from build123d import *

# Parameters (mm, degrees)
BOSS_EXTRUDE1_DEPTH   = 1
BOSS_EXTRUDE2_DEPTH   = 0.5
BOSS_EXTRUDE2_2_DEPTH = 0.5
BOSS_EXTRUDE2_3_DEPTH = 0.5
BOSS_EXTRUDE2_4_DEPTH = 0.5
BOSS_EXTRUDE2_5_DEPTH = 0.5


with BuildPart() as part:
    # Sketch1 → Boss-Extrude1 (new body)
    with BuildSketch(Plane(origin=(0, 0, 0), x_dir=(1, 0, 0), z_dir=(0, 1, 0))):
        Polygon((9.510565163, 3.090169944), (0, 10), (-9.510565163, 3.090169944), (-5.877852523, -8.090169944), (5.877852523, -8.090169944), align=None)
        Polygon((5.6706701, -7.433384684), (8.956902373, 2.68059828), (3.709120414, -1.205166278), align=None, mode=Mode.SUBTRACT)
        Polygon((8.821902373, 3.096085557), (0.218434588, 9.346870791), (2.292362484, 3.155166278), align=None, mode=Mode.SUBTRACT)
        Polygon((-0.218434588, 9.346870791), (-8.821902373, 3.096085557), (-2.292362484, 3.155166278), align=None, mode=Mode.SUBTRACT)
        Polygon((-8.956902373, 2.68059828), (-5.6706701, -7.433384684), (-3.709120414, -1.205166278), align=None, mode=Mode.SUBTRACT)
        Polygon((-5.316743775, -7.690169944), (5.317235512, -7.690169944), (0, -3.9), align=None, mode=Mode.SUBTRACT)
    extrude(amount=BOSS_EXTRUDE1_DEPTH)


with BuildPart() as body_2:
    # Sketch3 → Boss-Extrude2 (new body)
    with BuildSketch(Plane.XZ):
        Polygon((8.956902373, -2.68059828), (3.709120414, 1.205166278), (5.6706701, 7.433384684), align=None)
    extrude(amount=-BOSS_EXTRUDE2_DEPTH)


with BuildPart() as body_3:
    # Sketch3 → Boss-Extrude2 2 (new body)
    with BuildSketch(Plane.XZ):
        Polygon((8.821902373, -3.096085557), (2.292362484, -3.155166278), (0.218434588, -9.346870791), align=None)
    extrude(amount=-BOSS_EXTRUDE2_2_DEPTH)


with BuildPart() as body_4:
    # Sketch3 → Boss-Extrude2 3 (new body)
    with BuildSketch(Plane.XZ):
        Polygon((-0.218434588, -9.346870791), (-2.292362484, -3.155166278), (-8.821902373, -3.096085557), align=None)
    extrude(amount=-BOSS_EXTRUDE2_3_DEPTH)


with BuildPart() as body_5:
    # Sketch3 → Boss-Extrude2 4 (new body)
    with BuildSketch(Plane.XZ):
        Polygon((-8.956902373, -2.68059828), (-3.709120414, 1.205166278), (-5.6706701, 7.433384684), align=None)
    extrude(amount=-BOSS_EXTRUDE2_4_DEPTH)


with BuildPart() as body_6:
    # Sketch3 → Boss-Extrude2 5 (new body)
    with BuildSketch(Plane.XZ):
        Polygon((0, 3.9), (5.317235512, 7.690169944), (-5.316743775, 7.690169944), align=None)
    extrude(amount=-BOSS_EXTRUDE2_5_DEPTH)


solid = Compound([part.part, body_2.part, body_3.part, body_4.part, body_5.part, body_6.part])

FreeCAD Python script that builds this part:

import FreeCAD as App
import Part
import Sketcher
from FreeCAD import Vector
Q = App.Units.Quantity


def add_polygon(sketch, points):
    """Adds a closed chain of lines whose ends are joined by coincident constraints."""
    first, n = sketch.GeometryCount, len(points)
    for a, b in zip(points, points[1:] + points[:1]):
        sketch.addGeometry(Part.LineSegment(App.Vector(*a, 0), App.Vector(*b, 0)), False)
    for i in range(n):
        sketch.addConstraint(Sketcher.Constraint("Coincident", first + i, 2, first + (i + 1) % n, 1))

doc = App.newDocument("Part")
body = doc.addObject("PartDesign::Body", "Body")

# Sketch on XZ plane
sketch1 = body.newObject("Sketcher::SketchObject", "Sketch")
sketch1.AttachmentSupport = (doc.getObject("XZ_Plane"), [""])
sketch1.MapMode = "FlatFace"
add_polygon(sketch1, [(9.510565, -3.09017), (0, -10), (-9.510565, -3.09017), (-5.877853, 8.09017), (5.877853, 8.09017)])  # lines 0-4
add_polygon(sketch1, [(-5.67067, 7.433385), (-8.956902, -2.680598), (-3.70912, 1.205166)])  # lines 5-7
add_polygon(sketch1, [(5.317236, 7.69017), (-5.316744, 7.69017), (0, 3.9)])  # lines 8-10
add_polygon(sketch1, [(8.956902, -2.680598), (5.67067, 7.433385), (3.70912, 1.205166)])  # lines 11-13
add_polygon(sketch1, [(-8.821902, -3.096086), (-0.218435, -9.346871), (-2.292362, -3.155166)])  # lines 14-16
add_polygon(sketch1, [(0.218435, -9.346871), (8.821902, -3.096086), (2.292362, -3.155166)])  # lines 17-19
sketch1.addConstraint([
    Sketcher.Constraint("Horizontal", 3),
    Sketcher.Constraint("Horizontal", 8),
    Sketcher.Constraint("Symmetric", 1, 2, 4, 2, -2),
    Sketcher.Constraint("Symmetric", 7, 2, 11, 2, -2),
    Sketcher.Constraint("Symmetric", 6, 2, 12, 2, -2),
    Sketcher.Constraint("Symmetric", 5, 2, 13, 2, -2),
    Sketcher.Constraint("Symmetric", 16, 2, 17, 2, -2),
    Sketcher.Constraint("Symmetric", 15, 2, 18, 2, -2),
    Sketcher.Constraint("Symmetric", 14, 2, 19, 2, -2),
    Sketcher.Constraint("PointOnObject", 0, 2, -2),
    Sketcher.Constraint("PointOnObject", 9, 2, -2),
    Sketcher.Constraint("Parallel", 2, 5),
    Sketcher.Constraint("Parallel", 4, 11),
    Sketcher.Constraint("Parallel", 1, 14),
    Sketcher.Constraint("Equal", 1, 2),
    Sketcher.Constraint("Equal", 6, 7),
    Sketcher.Constraint("Equal", 7, 10),
    Sketcher.Constraint("Equal", 11, 14),
    Sketcher.Constraint("Equal", 13, 15),
    Sketcher.Constraint("Equal", 15, 16),
    Sketcher.Constraint("Angle", 0, Q("-144 deg")),
    Sketcher.Constraint("Angle", 2, Q("72 deg")),
    Sketcher.Constraint("DistanceY", 0, 2, -1, 1, 10.0),
    Sketcher.Constraint("DistanceY", -1, 1, 9, 2, 3.9),
    Sketcher.Constraint("DistanceY", 8, 2, 2, 2, 0.4),
    Sketcher.Constraint("DistanceX", 5, 2, 16, 2, 0.135),
    Sketcher.Constraint("DistanceX", 8, 2, 8, 1, 10.633979),
    Sketcher.Constraint("DistanceY", 5, 2, -1, 1, 2.680598),
    Sketcher.Constraint("DistanceY", 14, 2, 1, 2, 6.256701),
    Sketcher.Constraint("Distance", 5, 10.634471),
    Sketcher.Constraint("DistanceX", 3, 1, 3, 2, 11.755705),
    Sketcher.Constraint("DistanceX", 6, 2, -1, 1, 3.70912),
    Sketcher.Constraint("DistanceX", 7, 2, -1, 1, 5.67067),
])
pad1 = body.newObject("PartDesign::Pad", "Pad")
pad1.Profile = sketch1
pad1.Length = 1
pad1.Reversed = True
body2 = doc.addObject("PartDesign::Body", "Body001")

# Sketch on XZ plane
sketch2 = body2.newObject("Sketcher::SketchObject", "Sketch001")
sketch2.AttachmentSupport = (doc.getObject("XZ_Plane001"), [""])
sketch2.MapMode = "FlatFace"
add_polygon(sketch2, [(4, 1), (9, -3), (6, 7)])  # lines 0-2
sketch2.addConstraint([
    Sketcher.Constraint("Equal", 0, 2),
    Sketcher.Constraint("Angle", 1, Q("108 deg")),
    Sketcher.Constraint("DistanceY", 0, 2, -1, 1, 2.680598),
    Sketcher.Constraint("Distance", 1, 10.634471),
    Sketcher.Constraint("DistanceX", -1, 1, 1, 2, 5.67067),
    Sketcher.Constraint("DistanceX", -1, 1, 2, 2, 3.70912),
])
pad2 = body2.newObject("PartDesign::Pad", "Pad001")
pad2.Profile = sketch2
pad2.Length = 0.5
pad2.Reversed = True
body3 = doc.addObject("PartDesign::Body", "Body002")

# Sketch on XZ plane
sketch3 = body3.newObject("Sketcher::SketchObject", "Sketch002")
sketch3.AttachmentSupport = (doc.getObject("XZ_Plane002"), [""])
sketch3.MapMode = "FlatFace"
add_polygon(sketch3, [(9, -3), (2, -3), (0, -9)])  # lines 0-2
sketch3.addConstraint([
    Sketcher.Constraint("Equal", 0, 1),
    Sketcher.Constraint("Angle", 2, Q("36 deg")),
    Sketcher.Constraint("Distance", 2, 10.634471),
    Sketcher.Constraint("DistanceY", 1, 2, -1, 1, 9.346871),
    Sketcher.Constraint("DistanceX", 0, 2, 2, 2, 6.52954),
    Sketcher.Constraint("DistanceX", -1, 1, 0, 2, 2.292362),
])
pad3 = body3.newObject("PartDesign::Pad", "Pad002")
pad3.Profile = sketch3
pad3.Length = 0.5
pad3.Reversed = True
body4 = doc.addObject("PartDesign::Body", "Body003")

# Sketch on XZ plane
sketch4 = body4.newObject("Sketcher::SketchObject", "Sketch003")
sketch4.AttachmentSupport = (doc.getObject("XZ_Plane003"), [""])
sketch4.MapMode = "FlatFace"
add_polygon(sketch4, [(0, -9), (-2, -3), (-9, -3)])  # lines 0-2
sketch4.addConstraint([
    Sketcher.Constraint("Equal", 0, 1),
    Sketcher.Constraint("Angle", 2, Q("-36 deg")),
    Sketcher.Constraint("Distance", 2, 10.634471),
    Sketcher.Constraint("DistanceY", 2, 2, -1, 1, 9.346871),
    Sketcher.Constraint("DistanceX", 1, 2, 0, 2, 6.52954),
    Sketcher.Constraint("DistanceX", 0, 2, -1, 1, 2.292362),
])
pad4 = body4.newObject("PartDesign::Pad", "Pad003")
pad4.Profile = sketch4
pad4.Length = 0.5
pad4.Reversed = True
body5 = doc.addObject("PartDesign::Body", "Body004")

# Sketch on XZ plane
sketch5 = body5.newObject("Sketcher::SketchObject", "Sketch004")
sketch5.AttachmentSupport = (doc.getObject("XZ_Plane004"), [""])
sketch5.MapMode = "FlatFace"
add_polygon(sketch5, [(-9, -3), (-4, 1), (-6, 7)])  # lines 0-2
sketch5.addConstraint([
    Sketcher.Constraint("Equal", 0, 1),
    Sketcher.Constraint("Angle", 2, Q("-108 deg")),
    Sketcher.Constraint("DistanceY", 2, 2, -1, 1, 2.680598),
    Sketcher.Constraint("Distance", 2, 10.634471),
    Sketcher.Constraint("DistanceX", 0, 2, -1, 1, 3.70912),
    Sketcher.Constraint("DistanceX", 1, 2, -1, 1, 5.67067),
])
pad5 = body5.newObject("PartDesign::Pad", "Pad004")
pad5.Profile = sketch5
pad5.Length = 0.5
pad5.Reversed = True
body6 = doc.addObject("PartDesign::Body", "Body005")

# Sketch on XZ plane
sketch6 = body6.newObject("Sketcher::SketchObject", "Sketch005")
sketch6.AttachmentSupport = (doc.getObject("XZ_Plane005"), [""])
sketch6.MapMode = "FlatFace"
add_polygon(sketch6, [(0, 4), (5, 8), (-5, 8)])  # lines 0-2
sketch6.addConstraint([
    Sketcher.Constraint("Horizontal", 1),
    Sketcher.Constraint("PointOnObject", 2, 2, -2),
    Sketcher.Constraint("DistanceY", -1, 1, 2, 2, 3.9),
    Sketcher.Constraint("DistanceX", 1, 2, 1, 1, 10.633979),
    Sketcher.Constraint("DistanceY", -1, 1, 0, 2, 7.69017),
    Sketcher.Constraint("Distance", 0, 6.529807),
])
pad6 = body6.newObject("PartDesign::Pad", "Pad005")
pad6.Profile = sketch6
pad6.Length = 0.5
pad6.Reversed = True

doc.recompute()
